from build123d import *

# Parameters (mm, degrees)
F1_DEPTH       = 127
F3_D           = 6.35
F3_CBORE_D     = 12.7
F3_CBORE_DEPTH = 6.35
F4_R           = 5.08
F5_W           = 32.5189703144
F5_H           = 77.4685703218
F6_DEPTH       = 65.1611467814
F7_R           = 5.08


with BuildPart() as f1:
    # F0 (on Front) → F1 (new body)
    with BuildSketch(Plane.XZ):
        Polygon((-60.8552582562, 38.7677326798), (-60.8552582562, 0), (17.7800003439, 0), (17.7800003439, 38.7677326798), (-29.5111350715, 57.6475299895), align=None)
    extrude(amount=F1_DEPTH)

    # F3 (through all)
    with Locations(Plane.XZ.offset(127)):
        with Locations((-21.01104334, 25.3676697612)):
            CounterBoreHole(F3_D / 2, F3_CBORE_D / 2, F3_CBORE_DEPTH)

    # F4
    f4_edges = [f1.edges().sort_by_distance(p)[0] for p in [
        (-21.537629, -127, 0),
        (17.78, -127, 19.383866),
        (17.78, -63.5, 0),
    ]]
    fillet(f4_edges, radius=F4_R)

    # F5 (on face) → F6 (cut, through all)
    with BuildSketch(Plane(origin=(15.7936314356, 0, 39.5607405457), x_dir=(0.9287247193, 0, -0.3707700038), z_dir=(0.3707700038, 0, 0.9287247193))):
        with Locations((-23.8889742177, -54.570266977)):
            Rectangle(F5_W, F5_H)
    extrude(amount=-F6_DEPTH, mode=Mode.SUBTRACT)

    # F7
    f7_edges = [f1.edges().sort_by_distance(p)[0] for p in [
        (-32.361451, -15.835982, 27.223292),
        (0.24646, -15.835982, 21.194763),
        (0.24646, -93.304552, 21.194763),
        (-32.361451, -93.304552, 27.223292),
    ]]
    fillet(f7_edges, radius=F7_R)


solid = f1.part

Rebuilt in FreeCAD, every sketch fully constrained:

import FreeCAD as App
import Part
import Sketcher
Q = App.Units.Quantity


def edges_at(feature, points):
    """Names of the edges that pass closest to the given points."""
    edges = feature.Shape.Edges
    near = lambda p: min(range(len(edges)), key=lambda i: edges[i].distToShape(Part.Vertex(*p))[0])
    return sorted({f"Edge{near(p) + 1}" for p in points})


def add_polygon(sketch, points):
    """Adds a closed chain of lines whose ends are joined by coincident constraints."""
    first, n = sketch.GeometryCount, len(points)
    for a, b in zip(points, points[1:] + points[:1]):
        sketch.addGeometry(Part.LineSegment(App.Vector(*a, 0), App.Vector(*b, 0)), False)
    for i in range(n):
        sketch.addConstraint(Sketcher.Constraint("Coincident", first + i, 2, first + (i + 1) % n, 1))

doc = App.newDocument("Part")
body = doc.addObject("PartDesign::Body", "Body")

# Sketch on XZ plane
sketch1 = body.newObject("Sketcher::SketchObject", "Sketch")
sketch1.AttachmentSupport = (doc.getObject("XZ_Plane"), [""])
sketch1.MapMode = "FlatFace"
add_polygon(sketch1, [(-60.855258, 38.767733), (-60.855258, 0), (17.78, 0), (17.78, 38.767733), (-29.511135, 57.64753)])  # lines 0-4
sketch1.addConstraint([
    Sketcher.Constraint("Vertical", 0),
    Sketcher.Constraint("Horizontal", 1),
    Sketcher.Constraint("Vertical", 2),
    Sketcher.Constraint("PointOnObject", 0, 2, -1),
    Sketcher.Constraint("Horizontal", 2, 2, 4, 2),
    Sketcher.Constraint("DistanceX", -1, 1, 1, 2, Q("0.7 in")),
    Sketcher.Constraint("DistanceX", 1, 1, 1, 2, 78.635259),
    Sketcher.Constraint("Distance", 3, 50.920509),
    Sketcher.Constraint("DistanceY", 0, 2, 0, 1, 38.767733),
    Sketcher.Constraint("DistanceY", -1, 1, 3, 2, 57.64753),
])
pad1 = body.newObject("PartDesign::Pad", "Pad")
pad1.Profile = sketch1
pad1.Length = Q("5 in")

# Sketch on XZ plane
sketch2 = body.newObject("Sketcher::SketchObject", "Sketch001")
sketch2.AttachmentSupport = (doc.getObject("XZ_Plane"), [""])
sketch2.MapMode = "FlatFace"
sketch2.AttachmentOffset = App.Placement(App.Vector(0, 0, 5 * 25.4), App.Rotation())
sketch2.addGeometry(Part.Circle(App.Vector(-21.011043, 25.36767, 0), App.Vector(0, 0, 1), 3.175), False)
sketch2.addConstraint([
    Sketcher.Constraint("Diameter", 0, Q("0.25 in")),
    Sketcher.Constraint("DistanceY", -1, 1, 0, 3, 25.36767),
    Sketcher.Constraint("DistanceX", 0, 3, -1, 1, 21.011043),
])
doc.recompute()
hole = body.newObject("PartDesign::Hole", "Hole")
hole.Profile = sketch2
hole.ThreadType = "None"
hole.Diameter = Q("0.25 in")
hole.DepthType = "ThroughAll"
hole.HoleCutType = "Counterbore"
hole.HoleCutDiameter = Q("0.5 in")
hole.HoleCutDepth = Q("0.25 in")
doc.recompute()

fillet = body.newObject("PartDesign::Fillet", "Fillet")
fillet.Base = (hole, edges_at(hole, [(-21.538, -127, 0), (17.78, -127, 19.384), (17.78, -63.5, 0)]))
fillet.Radius = Q("0.2 in")

# Sketch on an angled plane
sketch3 = body.newObject("Sketcher::SketchObject", "Sketch002")
sketch3.Placement = App.Placement(App.Vector(15.793631, 0, 39.560741), App.Rotation(App.Vector(0.928724719, 0, -0.370770004), App.Vector(0, 1, 0), App.Vector(0.370770004, 0, 0.928724719), "ZXY"))
add_polygon(sketch3, [(-40.148459, -15.835982), (-40.148459, -93.304552), (-7.629489, -93.304552), (-7.629489, -15.835982)])  # lines 0-3
sketch3.addConstraint([
    Sketcher.Constraint("Vertical", 0),
    Sketcher.Constraint("Horizontal", 1),
    Sketcher.Constraint("Vertical", 2),
    Sketcher.Constraint("Horizontal", 3),
    Sketcher.Constraint("DistanceX", 1, 1, 1, 2, 32.51897),
    Sketcher.Constraint("DistanceY", 0, 2, 0, 1, 77.46857),
    Sketcher.Constraint("DistanceX", 0, 2, -1, 1, 40.148459),
    Sketcher.Constraint("DistanceY", 2, 2, -1, 1, 15.835982),
])
pocket1 = body.newObject("PartDesign::Pocket", "Pocket")
pocket1.Profile = sketch3
pocket1.Type = "ThroughAll"
doc.recompute()

fillet2 = body.newObject("PartDesign::Fillet", "Fillet001")
fillet2.Base = (pocket1, edges_at(pocket1, [
    (-32.361, -15.836, 27.223),
    (0.246, -15.836, 21.195),
    (0.246, -93.305, 21.195),
    (-32.361, -93.305, 27.223),
]))
fillet2.Radius = Q("0.2 in")

doc.recompute()
